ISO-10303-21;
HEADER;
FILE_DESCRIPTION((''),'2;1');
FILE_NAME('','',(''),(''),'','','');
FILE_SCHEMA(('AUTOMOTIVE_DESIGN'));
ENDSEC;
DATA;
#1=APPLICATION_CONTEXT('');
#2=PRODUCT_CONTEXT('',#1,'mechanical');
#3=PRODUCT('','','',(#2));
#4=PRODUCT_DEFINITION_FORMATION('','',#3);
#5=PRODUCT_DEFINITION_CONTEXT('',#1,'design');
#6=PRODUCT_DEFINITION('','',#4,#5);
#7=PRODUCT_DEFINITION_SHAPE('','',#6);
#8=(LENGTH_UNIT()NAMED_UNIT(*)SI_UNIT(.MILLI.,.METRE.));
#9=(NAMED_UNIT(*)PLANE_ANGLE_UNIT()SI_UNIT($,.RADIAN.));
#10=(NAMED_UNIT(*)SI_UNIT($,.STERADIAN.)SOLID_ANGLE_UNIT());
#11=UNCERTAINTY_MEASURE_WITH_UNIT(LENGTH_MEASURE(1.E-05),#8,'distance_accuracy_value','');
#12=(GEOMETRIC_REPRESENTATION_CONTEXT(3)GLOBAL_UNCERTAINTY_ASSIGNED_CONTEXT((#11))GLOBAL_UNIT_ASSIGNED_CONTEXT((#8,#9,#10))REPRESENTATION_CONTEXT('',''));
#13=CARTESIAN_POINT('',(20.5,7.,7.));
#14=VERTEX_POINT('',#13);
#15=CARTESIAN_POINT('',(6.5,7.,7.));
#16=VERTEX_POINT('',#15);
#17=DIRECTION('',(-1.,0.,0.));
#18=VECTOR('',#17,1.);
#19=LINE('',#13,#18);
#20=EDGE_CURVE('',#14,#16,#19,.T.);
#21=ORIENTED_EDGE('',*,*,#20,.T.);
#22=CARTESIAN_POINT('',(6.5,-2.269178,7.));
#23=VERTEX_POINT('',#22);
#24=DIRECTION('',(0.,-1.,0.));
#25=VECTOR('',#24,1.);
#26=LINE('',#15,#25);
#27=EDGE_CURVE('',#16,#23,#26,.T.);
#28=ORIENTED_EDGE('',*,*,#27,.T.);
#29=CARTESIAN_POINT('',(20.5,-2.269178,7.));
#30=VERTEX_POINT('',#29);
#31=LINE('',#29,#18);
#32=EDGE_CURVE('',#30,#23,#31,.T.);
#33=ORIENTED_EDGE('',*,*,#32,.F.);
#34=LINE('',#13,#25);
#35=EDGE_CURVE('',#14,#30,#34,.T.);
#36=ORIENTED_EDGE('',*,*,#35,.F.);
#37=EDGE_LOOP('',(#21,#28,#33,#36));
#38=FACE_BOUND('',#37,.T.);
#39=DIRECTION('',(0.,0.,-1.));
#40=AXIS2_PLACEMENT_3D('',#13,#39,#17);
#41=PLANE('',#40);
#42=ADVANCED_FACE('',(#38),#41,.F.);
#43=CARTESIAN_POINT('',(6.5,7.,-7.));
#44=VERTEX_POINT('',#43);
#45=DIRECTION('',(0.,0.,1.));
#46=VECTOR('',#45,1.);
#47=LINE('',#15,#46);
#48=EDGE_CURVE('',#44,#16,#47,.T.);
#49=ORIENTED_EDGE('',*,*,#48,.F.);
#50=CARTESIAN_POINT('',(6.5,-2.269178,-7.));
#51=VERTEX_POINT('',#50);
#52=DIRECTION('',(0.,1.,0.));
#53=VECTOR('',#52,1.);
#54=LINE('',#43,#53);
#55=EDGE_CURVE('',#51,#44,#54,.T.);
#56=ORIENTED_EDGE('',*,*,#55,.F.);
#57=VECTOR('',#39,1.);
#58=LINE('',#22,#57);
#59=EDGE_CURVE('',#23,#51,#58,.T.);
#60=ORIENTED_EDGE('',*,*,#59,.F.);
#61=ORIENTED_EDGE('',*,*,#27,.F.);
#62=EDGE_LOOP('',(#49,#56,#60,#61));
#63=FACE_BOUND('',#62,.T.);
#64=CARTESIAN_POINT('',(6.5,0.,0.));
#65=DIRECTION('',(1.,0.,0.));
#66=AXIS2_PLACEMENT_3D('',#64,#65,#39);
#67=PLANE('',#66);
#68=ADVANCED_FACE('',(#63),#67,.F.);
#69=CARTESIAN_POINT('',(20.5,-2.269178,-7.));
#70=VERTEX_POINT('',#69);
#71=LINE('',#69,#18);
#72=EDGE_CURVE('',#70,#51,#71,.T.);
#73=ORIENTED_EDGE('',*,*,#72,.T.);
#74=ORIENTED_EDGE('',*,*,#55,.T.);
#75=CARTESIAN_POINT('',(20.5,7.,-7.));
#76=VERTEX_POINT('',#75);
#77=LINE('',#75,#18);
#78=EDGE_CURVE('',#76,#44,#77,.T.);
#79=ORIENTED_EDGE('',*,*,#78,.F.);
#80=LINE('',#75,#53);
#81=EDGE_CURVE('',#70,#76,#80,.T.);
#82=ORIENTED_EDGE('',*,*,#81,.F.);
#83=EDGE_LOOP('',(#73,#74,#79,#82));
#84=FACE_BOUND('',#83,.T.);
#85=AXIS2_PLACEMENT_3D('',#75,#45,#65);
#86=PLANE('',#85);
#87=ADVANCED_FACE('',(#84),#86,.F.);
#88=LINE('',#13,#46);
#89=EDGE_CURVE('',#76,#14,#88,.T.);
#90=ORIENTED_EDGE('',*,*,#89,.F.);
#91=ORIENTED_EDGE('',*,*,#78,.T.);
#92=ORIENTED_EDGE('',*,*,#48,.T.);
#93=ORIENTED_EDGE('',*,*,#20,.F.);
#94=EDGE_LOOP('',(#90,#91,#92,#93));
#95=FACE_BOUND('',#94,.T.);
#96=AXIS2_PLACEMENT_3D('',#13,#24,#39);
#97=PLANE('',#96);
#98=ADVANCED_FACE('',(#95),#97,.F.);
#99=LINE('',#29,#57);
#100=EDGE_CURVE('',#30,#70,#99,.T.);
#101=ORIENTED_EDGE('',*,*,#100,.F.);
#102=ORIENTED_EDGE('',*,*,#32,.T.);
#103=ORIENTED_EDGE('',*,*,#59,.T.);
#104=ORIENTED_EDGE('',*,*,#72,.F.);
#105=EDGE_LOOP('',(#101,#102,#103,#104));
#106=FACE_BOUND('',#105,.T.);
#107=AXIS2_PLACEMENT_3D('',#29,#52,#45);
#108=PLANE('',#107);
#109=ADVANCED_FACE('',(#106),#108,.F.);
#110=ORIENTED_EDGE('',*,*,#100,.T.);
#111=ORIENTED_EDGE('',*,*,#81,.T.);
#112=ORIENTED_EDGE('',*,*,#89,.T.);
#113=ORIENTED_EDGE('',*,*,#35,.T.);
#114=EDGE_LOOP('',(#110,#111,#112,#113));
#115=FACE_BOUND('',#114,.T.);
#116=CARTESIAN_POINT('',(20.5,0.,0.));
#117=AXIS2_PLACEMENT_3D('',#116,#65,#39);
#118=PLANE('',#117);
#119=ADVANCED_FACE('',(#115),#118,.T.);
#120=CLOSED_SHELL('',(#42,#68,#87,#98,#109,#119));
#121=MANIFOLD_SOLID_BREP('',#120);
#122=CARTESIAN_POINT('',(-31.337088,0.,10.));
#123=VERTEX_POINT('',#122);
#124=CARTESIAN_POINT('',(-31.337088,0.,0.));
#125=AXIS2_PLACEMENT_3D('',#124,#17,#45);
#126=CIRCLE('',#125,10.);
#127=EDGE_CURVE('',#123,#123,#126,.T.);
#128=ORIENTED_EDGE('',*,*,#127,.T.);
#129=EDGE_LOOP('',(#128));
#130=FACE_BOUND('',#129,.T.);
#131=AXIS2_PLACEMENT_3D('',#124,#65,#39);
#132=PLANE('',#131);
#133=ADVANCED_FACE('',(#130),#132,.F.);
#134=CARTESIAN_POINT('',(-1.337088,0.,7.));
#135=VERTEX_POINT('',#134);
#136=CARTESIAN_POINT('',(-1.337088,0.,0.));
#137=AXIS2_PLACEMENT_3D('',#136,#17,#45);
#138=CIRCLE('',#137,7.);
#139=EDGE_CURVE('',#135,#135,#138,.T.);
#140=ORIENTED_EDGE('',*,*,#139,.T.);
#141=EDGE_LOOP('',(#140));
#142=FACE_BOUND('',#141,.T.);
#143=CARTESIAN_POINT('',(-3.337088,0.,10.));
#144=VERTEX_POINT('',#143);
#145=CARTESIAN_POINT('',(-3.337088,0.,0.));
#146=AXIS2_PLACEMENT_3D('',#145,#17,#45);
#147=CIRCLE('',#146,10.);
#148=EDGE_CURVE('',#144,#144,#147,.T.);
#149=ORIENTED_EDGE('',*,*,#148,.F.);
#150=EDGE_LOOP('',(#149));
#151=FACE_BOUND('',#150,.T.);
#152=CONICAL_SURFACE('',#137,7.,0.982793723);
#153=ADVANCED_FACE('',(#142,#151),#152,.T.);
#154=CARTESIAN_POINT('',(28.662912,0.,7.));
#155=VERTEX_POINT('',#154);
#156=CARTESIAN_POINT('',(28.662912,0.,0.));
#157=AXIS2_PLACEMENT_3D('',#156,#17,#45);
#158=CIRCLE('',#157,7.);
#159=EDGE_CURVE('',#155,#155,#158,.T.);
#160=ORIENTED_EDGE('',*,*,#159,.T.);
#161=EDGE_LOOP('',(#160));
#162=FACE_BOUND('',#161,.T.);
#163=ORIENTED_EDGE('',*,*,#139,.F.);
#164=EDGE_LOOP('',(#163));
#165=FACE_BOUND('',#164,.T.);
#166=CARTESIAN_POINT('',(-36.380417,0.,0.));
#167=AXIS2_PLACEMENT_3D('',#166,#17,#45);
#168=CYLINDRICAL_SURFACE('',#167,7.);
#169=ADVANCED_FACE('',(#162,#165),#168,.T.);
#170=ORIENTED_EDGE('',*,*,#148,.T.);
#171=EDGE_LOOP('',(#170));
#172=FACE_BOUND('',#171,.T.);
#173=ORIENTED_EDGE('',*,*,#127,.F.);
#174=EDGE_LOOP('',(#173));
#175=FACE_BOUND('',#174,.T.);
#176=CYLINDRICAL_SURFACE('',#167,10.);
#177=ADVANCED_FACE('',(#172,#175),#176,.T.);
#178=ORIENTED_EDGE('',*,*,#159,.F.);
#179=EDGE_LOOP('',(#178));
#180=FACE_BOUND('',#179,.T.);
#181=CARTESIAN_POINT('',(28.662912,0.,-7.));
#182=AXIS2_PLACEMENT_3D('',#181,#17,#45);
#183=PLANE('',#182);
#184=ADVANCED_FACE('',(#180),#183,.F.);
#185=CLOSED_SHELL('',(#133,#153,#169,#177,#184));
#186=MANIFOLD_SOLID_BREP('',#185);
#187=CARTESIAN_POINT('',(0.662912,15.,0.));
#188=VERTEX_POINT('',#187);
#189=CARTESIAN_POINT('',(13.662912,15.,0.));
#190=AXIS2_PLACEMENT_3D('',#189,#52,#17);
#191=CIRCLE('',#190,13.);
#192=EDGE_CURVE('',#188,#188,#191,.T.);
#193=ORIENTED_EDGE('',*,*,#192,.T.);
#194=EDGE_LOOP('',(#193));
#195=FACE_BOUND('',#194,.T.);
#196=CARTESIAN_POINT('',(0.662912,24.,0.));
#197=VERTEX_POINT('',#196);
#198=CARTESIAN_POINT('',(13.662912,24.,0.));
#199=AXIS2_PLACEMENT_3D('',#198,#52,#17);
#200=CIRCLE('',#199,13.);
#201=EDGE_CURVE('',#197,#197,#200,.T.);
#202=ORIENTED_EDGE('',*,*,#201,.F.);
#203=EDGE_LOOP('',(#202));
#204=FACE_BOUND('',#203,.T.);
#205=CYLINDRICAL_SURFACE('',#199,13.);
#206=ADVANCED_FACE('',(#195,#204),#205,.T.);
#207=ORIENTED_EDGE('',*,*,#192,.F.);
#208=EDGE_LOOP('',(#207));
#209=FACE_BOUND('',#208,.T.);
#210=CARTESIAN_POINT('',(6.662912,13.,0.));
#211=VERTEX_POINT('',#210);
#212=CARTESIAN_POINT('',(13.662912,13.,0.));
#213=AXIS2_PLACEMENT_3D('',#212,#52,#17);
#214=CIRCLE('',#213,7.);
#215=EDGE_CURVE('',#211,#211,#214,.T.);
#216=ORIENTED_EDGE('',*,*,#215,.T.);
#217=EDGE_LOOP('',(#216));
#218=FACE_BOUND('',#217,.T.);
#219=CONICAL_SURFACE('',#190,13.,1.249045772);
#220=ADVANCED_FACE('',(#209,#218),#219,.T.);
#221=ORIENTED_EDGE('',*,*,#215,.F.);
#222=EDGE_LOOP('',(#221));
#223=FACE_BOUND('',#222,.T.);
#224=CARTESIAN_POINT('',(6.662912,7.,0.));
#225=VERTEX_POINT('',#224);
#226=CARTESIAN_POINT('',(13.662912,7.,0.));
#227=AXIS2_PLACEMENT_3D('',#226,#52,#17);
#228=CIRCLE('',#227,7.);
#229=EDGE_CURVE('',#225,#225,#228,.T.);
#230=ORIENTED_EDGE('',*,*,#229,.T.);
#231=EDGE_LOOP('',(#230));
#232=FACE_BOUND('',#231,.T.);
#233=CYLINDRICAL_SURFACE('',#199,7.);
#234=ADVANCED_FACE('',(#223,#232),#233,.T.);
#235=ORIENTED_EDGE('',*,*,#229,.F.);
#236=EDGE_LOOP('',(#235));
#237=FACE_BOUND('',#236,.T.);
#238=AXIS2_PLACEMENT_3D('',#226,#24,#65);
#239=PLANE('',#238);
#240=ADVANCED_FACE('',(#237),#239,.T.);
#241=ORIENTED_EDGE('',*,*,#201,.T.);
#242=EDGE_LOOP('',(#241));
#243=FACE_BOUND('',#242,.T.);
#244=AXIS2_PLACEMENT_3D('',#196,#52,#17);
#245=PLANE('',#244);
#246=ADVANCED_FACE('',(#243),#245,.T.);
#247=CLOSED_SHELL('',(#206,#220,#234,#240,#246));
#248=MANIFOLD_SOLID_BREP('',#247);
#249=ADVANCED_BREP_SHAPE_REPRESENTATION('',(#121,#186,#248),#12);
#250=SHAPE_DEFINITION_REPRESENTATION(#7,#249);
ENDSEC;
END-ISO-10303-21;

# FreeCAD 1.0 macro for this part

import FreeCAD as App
import Part
import Sketcher
from FreeCAD import Vector
Q = App.Units.Quantity


def add_polygon(sketch, points):
    """Adds a closed chain of lines whose ends are joined by coincident constraints."""
    first, n = sketch.GeometryCount, len(points)
    for a, b in zip(points, points[1:] + points[:1]):
        sketch.addGeometry(Part.LineSegment(App.Vector(*a, 0), App.Vector(*b, 0)), False)
    for i in range(n):
        sketch.addConstraint(Sketcher.Constraint("Coincident", first + i, 2, first + (i + 1) % n, 1))

doc = App.newDocument("Part")
body = doc.addObject("PartDesign::Body", "Body")

# Sketch on XZ plane
sketch1 = doc.addObject("Sketcher::SketchObject", "Sketch")
body.addObject(sketch1)
sketch1.AttachmentSupport = (doc.XZ_Plane, [""])
sketch1.MapMode = "FlatFace"
add_polygon(sketch1, [(-3.3, -10), (-31.3, -10), (-31.3, 0), (28.7, 0), (28.7, -7), (-1.3, -7)])  # lines 0-5
sketch1.addConstraint([
    Sketcher.Constraint("Horizontal", 0),
    Sketcher.Constraint("Vertical", 1),
    Sketcher.Constraint("Horizontal", 2),
    Sketcher.Constraint("Vertical", 3),
    Sketcher.Constraint("Horizontal", 4),
    Sketcher.Constraint("PointOnObject", 1, 2, -1),
    Sketcher.Constraint("DistanceX", 0, 2, 0, 1, Q("28 mm")),
    Sketcher.Constraint("DistanceX", 2, 1, 2, 2, Q("60 mm")),
    Sketcher.Constraint("DistanceX", 4, 2, 4, 1, Q("30 mm")),
    Sketcher.Constraint("DistanceY", 1, 1, 1, 2, Q("10 mm")),
    Sketcher.Constraint("DistanceY", 3, 2, 3, 1, Q("7 mm")),
    Sketcher.Constraint("DistanceX", 0, 2, -1, 1, Q("31.337088 mm")),
])
revolution = doc.addObject("PartDesign::Revolution", "Revolution")
body.addObject(revolution)
revolution.Profile = sketch1
revolution.ReferenceAxis = (sketch1, ["H_Axis"])
revolution.Angle = 360
body2 = doc.addObject("PartDesign::Body", "Body001")

# Sketch on XY plane
sketch2 = doc.addObject("Sketcher::SketchObject", "Sketch001")
body2.addObject(sketch2)
sketch2.AttachmentSupport = (doc.getObject("XY_Plane001"), [""])
sketch2.MapMode = "FlatFace"
add_polygon(sketch2, [(7, 13), (7, 7), (14, 7), (14, 24), (1, 24), (1, 15)])  # lines 0-5
sketch2.addGeometry(Part.LineSegment(Vector(14, 24, 0), Vector(14, 7, 0)), True)  # axis
sketch2.addConstraint([
    Sketcher.Constraint("Vertical", 0),
    Sketcher.Constraint("Horizontal", 1),
    Sketcher.Constraint("Vertical", 2),
    Sketcher.Constraint("Horizontal", 3),
    Sketcher.Constraint("Vertical", 4),
    Sketcher.Constraint("Vertical", 6),
    Sketcher.Constraint("Coincident", 6, 1, 2, 2),
    Sketcher.Constraint("Horizontal", 0, 2, 6, 2),
    Sketcher.Constraint("DistanceX", 1, 1, 1, 2, Q("7 mm")),
    Sketcher.Constraint("DistanceX", 3, 2, 3, 1, Q("13 mm")),
    Sketcher.Constraint("DistanceY", 0, 2, 0, 1, Q("6 mm")),
    Sketcher.Constraint("DistanceY", 2, 1, 2, 2, Q("17 mm")),
    Sketcher.Constraint("DistanceY", 4, 2, 4, 1, Q("9 mm")),
    Sketcher.Constraint("DistanceY", -1, 1, 0, 2, Q("7 mm")),
    Sketcher.Constraint("DistanceX", -1, 1, 0, 2, Q("6.662912 mm")),
])
revolution2 = doc.addObject("PartDesign::Revolution", "Revolution001")
body2.addObject(revolution2)
revolution2.Profile = sketch2
revolution2.ReferenceAxis = (sketch2, ["Axis0"])
revolution2.Angle = 360
body3 = doc.addObject("PartDesign::Body", "Body002")

# Sketch on YZ plane
sketch3 = doc.addObject("Sketcher::SketchObject", "Sketch002")
body3.addObject(sketch3)
sketch3.AttachmentSupport = (doc.getObject("YZ_Plane002"), [""])
sketch3.MapMode = "FlatFace"
sketch3.AttachmentOffset = App.Placement(Vector(0, 0, 13.5), App.Rotation())
add_polygon(sketch3, [(7, 7), (-2, 7), (-2, -7), (7, -7)])  # lines 0-3
sketch3.addConstraint([
    Sketcher.Constraint("Horizontal", 0),
    Sketcher.Constraint("Vertical", 1),
    Sketcher.Constraint("Horizontal", 2),
    Sketcher.Constraint("Vertical", 3),
    Sketcher.Constraint("DistanceY", 1, 2, 1, 1, Q("14 mm")),
    Sketcher.Constraint("DistanceY", -1, 1, 0, 2, Q("7 mm")),
    Sketcher.Constraint("DistanceX", -1, 1, 2, 2, Q("7 mm")),
    Sketcher.Constraint("DistanceX", 0, 2, 0, 1, Q("9.269178 mm")),
])
pad1 = doc.addObject("PartDesign::Pad", "Pad")
body3.addObject(pad1)
pad1.Profile = sketch3
pad1.Length = 14
pad1.Midplane = True

doc.recompute()
